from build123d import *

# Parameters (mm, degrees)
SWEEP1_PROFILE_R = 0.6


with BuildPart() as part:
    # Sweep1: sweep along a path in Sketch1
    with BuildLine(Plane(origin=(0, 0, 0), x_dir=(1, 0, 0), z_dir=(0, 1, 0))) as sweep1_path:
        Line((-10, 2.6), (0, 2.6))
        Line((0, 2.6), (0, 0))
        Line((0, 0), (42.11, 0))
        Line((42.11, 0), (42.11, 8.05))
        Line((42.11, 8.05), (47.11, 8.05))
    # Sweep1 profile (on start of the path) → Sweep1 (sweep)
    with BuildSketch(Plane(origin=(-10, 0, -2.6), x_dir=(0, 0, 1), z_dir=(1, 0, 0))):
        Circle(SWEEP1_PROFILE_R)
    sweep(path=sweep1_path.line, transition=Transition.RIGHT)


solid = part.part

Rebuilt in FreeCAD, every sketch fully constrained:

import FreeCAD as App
import Part
import Sketcher
Q = App.Units.Quantity

doc = App.newDocument("Part")
body = doc.addObject("PartDesign::Body", "Body")

# Sketch on YZ plane
sketch1 = body.newObject("Sketcher::SketchObject", "Sketch")
sketch1.AttachmentSupport = (doc.getObject("YZ_Plane"), [""])
sketch1.MapMode = "FlatFace"
sketch1.AttachmentOffset = App.Placement(App.Vector(0, 0, -10), App.Rotation())
sketch1.addGeometry(Part.Circle(App.Vector(0, -2.6, 0), App.Vector(0, 0, 1), 0.6), False)
sketch1.addConstraint([
    Sketcher.Constraint("PointOnObject", 0, 3, -2),
    Sketcher.Constraint("Diameter", 0, Q("1.2 mm")),
    Sketcher.Constraint("DistanceY", 0, 3, -1, 1, Q("2.6 mm")),
])

# Sketch on XZ plane
sketch2 = body.newObject("Sketcher::SketchObject", "Sketch001")
sketch2.AttachmentSupport = (doc.getObject("XZ_Plane"), [""])
sketch2.MapMode = "FlatFace"
sketch2.addGeometry([
    Part.LineSegment(App.Vector(-10, -2.6, 0), App.Vector(0, -2.6, 0)),  # 0
    Part.LineSegment(App.Vector(0, -2.6, 0), App.Vector(0, 0, 0)),  # 1
    Part.LineSegment(App.Vector(0, 0, 0), App.Vector(42.1, 0, 0)),  # 2
    Part.LineSegment(App.Vector(42.1, 0, 0), App.Vector(42.1, -8.1, 0)),  # 3
    Part.LineSegment(App.Vector(42.1, -8.1, 0), App.Vector(47.1, -8.1, 0)),  # 4
], False)
sketch2.addConstraint([
    Sketcher.Constraint("Coincident", 0, 2, 1, 1),
    Sketcher.Constraint("Coincident", 1, 2, 2, 1),
    Sketcher.Constraint("Coincident", 2, 2, 3, 1),
    Sketcher.Constraint("Coincident", 3, 2, 4, 1),
    Sketcher.Constraint("Horizontal", 0),
    Sketcher.Constraint("Vertical", 1),
    Sketcher.Constraint("Horizontal", 2),
    Sketcher.Constraint("Vertical", 3),
    Sketcher.Constraint("Horizontal", 4),
    Sketcher.Constraint("Coincident", 1, 2, -1, 1),
    Sketcher.Constraint("DistanceX", 0, 1, 0, 2, Q("10 mm")),
    Sketcher.Constraint("DistanceX", 4, 1, 4, 2, Q("5 mm")),
    Sketcher.Constraint("DistanceY", 1, 1, 1, 2, Q("2.6 mm")),
    Sketcher.Constraint("DistanceX", 2, 1, 2, 2, Q("42.11 mm")),
    Sketcher.Constraint("DistanceY", 3, 2, 3, 1, Q("8.05 mm")),
])
doc.recompute()

additivepipe = body.newObject("PartDesign::AdditivePipe", "AdditivePipe")
additivepipe.Profile = sketch1
additivepipe.Spine = (sketch2, ["Edge1", "Edge2", "Edge3", "Edge4", "Edge5"])
additivepipe.Transition = "Right corner"

doc.recompute()
